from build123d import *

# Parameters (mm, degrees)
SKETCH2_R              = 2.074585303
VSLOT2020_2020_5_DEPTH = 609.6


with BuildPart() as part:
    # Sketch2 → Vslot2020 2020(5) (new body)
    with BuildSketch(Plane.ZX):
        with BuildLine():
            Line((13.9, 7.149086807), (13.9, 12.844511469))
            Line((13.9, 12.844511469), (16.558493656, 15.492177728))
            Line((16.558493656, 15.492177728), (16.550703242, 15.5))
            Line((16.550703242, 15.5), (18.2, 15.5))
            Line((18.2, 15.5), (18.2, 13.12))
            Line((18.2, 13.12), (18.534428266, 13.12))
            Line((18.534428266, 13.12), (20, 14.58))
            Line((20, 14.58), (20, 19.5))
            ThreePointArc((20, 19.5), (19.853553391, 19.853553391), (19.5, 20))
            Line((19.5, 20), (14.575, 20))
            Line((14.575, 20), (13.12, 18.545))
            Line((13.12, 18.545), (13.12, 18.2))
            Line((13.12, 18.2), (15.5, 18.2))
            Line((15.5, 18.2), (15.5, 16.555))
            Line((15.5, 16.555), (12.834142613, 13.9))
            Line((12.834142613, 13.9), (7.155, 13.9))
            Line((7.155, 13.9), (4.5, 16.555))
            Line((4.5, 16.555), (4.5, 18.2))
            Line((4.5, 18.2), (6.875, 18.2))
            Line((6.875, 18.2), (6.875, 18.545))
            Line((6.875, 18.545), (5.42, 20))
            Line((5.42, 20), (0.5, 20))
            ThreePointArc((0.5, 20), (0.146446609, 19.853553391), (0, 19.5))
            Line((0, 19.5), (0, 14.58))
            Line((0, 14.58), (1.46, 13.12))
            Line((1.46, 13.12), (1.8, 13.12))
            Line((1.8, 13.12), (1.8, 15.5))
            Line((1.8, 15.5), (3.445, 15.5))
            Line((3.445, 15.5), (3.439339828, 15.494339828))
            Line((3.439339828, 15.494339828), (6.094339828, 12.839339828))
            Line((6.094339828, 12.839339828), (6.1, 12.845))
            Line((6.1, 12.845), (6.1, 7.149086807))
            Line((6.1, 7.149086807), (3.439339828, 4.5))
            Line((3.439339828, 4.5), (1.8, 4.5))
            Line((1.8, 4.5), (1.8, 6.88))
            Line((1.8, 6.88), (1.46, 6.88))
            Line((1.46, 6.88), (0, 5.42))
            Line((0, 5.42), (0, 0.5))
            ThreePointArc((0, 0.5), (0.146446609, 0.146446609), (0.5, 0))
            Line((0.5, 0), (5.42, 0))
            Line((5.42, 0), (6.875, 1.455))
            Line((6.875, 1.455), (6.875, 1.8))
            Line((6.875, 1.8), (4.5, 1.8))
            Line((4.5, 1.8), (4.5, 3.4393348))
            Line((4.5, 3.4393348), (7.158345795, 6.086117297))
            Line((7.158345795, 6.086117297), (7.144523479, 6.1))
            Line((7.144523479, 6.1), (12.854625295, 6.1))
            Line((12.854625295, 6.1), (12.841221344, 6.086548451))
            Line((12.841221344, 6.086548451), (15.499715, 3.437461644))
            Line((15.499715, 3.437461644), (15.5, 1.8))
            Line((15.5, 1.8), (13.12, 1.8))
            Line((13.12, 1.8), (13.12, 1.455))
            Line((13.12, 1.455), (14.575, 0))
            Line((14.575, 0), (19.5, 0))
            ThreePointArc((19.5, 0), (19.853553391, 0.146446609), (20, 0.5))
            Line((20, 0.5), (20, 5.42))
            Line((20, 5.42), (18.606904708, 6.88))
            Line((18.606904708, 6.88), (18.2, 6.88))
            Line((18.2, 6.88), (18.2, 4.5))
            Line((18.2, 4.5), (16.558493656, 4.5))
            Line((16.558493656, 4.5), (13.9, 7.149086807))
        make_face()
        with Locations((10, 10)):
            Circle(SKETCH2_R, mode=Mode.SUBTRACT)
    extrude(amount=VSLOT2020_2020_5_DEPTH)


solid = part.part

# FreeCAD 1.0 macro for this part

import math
import FreeCAD as App
import Part
import Sketcher

V = App.Vector
Q = App.Units.Quantity

doc = App.newDocument("Part")
body = doc.addObject("PartDesign::Body", "Body")

# Sketch on XZ plane
sketch1 = body.newObject("Sketcher::SketchObject", "Sketch")
sketch1.AttachmentSupport = (doc.getObject("XZ_Plane"), [""])
sketch1.MapMode = "FlatFace"
sketch1.addGeometry([
    Part.LineSegment(V(7.149, 13.9, 0), V(12.845, 13.9, 0)),  # 0
    Part.LineSegment(V(12.845, 13.9, 0), V(15.492, 16.558, 0)),  # 1
    Part.LineSegment(V(15.492, 16.558, 0), V(15.5, 16.551, 0)),  # 2
    Part.LineSegment(V(15.5, 16.551, 0), V(15.5, 18.2, 0)),  # 3
    Part.LineSegment(V(15.5, 18.2, 0), V(13.12, 18.2, 0)),  # 4
    Part.LineSegment(V(13.12, 18.2, 0), V(13.12, 18.534, 0)),  # 5
    Part.LineSegment(V(13.12, 18.534, 0), V(14.58, 20, 0)),  # 6
    Part.LineSegment(V(14.58, 20, 0), V(19.5, 20, 0)),  # 7
    Part.ArcOfCircle(Part.Circle(V(19.5, 19.5, 0), V(0, 0, 1), 0.5), math.radians(0), math.radians(90)),  # 8
    Part.LineSegment(V(20, 19.5, 0), V(20, 14.575, 0)),  # 9
    Part.LineSegment(V(20, 14.575, 0), V(18.545, 13.12, 0)),  # 10
    Part.LineSegment(V(18.545, 13.12, 0), V(18.2, 13.12, 0)),  # 11
    Part.LineSegment(V(18.2, 13.12, 0), V(18.2, 15.5, 0)),  # 12
    Part.LineSegment(V(18.2, 15.5, 0), V(16.555, 15.5, 0)),  # 13
    Part.LineSegment(V(16.555, 15.5, 0), V(13.9, 12.834, 0)),  # 14
    Part.LineSegment(V(13.9, 12.834, 0), V(13.9, 7.155, 0)),  # 15
    Part.LineSegment(V(13.9, 7.155, 0), V(16.555, 4.5, 0)),  # 16
    Part.LineSegment(V(16.555, 4.5, 0), V(18.2, 4.5, 0)),  # 17
    Part.LineSegment(V(18.2, 4.5, 0), V(18.2, 6.875, 0)),  # 18
    Part.LineSegment(V(18.2, 6.875, 0), V(18.545, 6.875, 0)),  # 19
    Part.LineSegment(V(18.545, 6.875, 0), V(20, 5.42, 0)),  # 20
    Part.LineSegment(V(20, 5.42, 0), V(20, 0.5, 0)),  # 21
    Part.ArcOfCircle(Part.Circle(V(19.5, 0.5, 0), V(0, 0, 1), 0.5), math.radians(-90), math.radians(0)),  # 22
    Part.LineSegment(V(19.5, 0, 0), V(14.58, 0, 0)),  # 23
    Part.LineSegment(V(14.58, 0, 0), V(13.12, 1.46, 0)),  # 24
    Part.LineSegment(V(13.12, 1.46, 0), V(13.12, 1.8, 0)),  # 25
    Part.LineSegment(V(13.12, 1.8, 0), V(15.5, 1.8, 0)),  # 26
    Part.LineSegment(V(15.5, 1.8, 0), V(15.5, 3.445, 0)),  # 27
    Part.LineSegment(V(15.5, 3.445, 0), V(15.494, 3.439, 0)),  # 28
    Part.LineSegment(V(15.494, 3.439, 0), V(12.839, 6.094, 0)),  # 29
    Part.LineSegment(V(12.839, 6.094, 0), V(12.845, 6.1, 0)),  # 30
    Part.LineSegment(V(12.845, 6.1, 0), V(7.149, 6.1, 0)),  # 31
    Part.LineSegment(V(7.149, 6.1, 0), V(4.5, 3.439, 0)),  # 32
    Part.LineSegment(V(4.5, 3.439, 0), V(4.5, 1.8, 0)),  # 33
    Part.LineSegment(V(4.5, 1.8, 0), V(6.88, 1.8, 0)),  # 34
    Part.LineSegment(V(6.88, 1.8, 0), V(6.88, 1.46, 0)),  # 35
    Part.LineSegment(V(6.88, 1.46, 0), V(5.42, 0, 0)),  # 36
    Part.LineSegment(V(5.42, 0, 0), V(0.5, 0, 0)),  # 37
    Part.ArcOfCircle(Part.Circle(V(0.5, 0.5, 0), V(0, 0, 1), 0.5), math.radians(180), math.radians(270)),  # 38
    Part.LineSegment(V(0, 0.5, 0), V(0, 5.42, 0)),  # 39
    Part.LineSegment(V(0, 5.42, 0), V(1.455, 6.875, 0)),  # 40
    Part.LineSegment(V(1.455, 6.875, 0), V(1.8, 6.875, 0)),  # 41
    Part.LineSegment(V(1.8, 6.875, 0), V(1.8, 4.5, 0)),  # 42
    Part.LineSegment(V(1.8, 4.5, 0), V(3.439, 4.5, 0)),  # 43
    Part.LineSegment(V(3.439, 4.5, 0), V(6.086, 7.158, 0)),  # 44
    Part.LineSegment(V(6.086, 7.158, 0), V(6.1, 7.145, 0)),  # 45
    Part.LineSegment(V(6.1, 7.145, 0), V(6.1, 12.855, 0)),  # 46
    Part.LineSegment(V(6.1, 12.855, 0), V(6.087, 12.841, 0)),  # 47
    Part.LineSegment(V(6.087, 12.841, 0), V(3.437, 15.5, 0)),  # 48
    Part.LineSegment(V(3.437, 15.5, 0), V(1.8, 15.5, 0)),  # 49
    Part.LineSegment(V(1.8, 15.5, 0), V(1.8, 13.12, 0)),  # 50
    Part.LineSegment(V(1.8, 13.12, 0), V(1.455, 13.12, 0)),  # 51
    Part.LineSegment(V(1.455, 13.12, 0), V(0, 14.575, 0)),  # 52
    Part.LineSegment(V(0, 14.575, 0), V(0, 19.5, 0)),  # 53
    Part.ArcOfCircle(Part.Circle(V(0.5, 19.5, 0), V(0, 0, 1), 0.5), math.radians(90), math.radians(180)),  # 54
    Part.LineSegment(V(0.5, 20, 0), V(5.42, 20, 0)),  # 55
    Part.LineSegment(V(5.42, 20, 0), V(6.88, 18.607, 0)),  # 56
    Part.LineSegment(V(6.88, 18.607, 0), V(6.88, 18.2, 0)),  # 57
    Part.LineSegment(V(6.88, 18.2, 0), V(4.5, 18.2, 0)),  # 58
    Part.LineSegment(V(4.5, 18.2, 0), V(4.5, 16.558, 0)),  # 59
    Part.LineSegment(V(4.5, 16.558, 0), V(7.149, 13.9, 0)),  # 60
    Part.Circle(V(10, 10, 0), V(0, 0, 1), 2.075),  # 61
], False)
sketch1.addConstraint([
    Sketcher.Constraint("Coincident", 0, 2, 1, 1),
    Sketcher.Constraint("Coincident", 1, 2, 2, 1),
    Sketcher.Constraint("Coincident", 2, 2, 3, 1),
    Sketcher.Constraint("Coincident", 3, 2, 4, 1),
    Sketcher.Constraint("Coincident", 4, 2, 5, 1),
    Sketcher.Constraint("Coincident", 5, 2, 6, 1),
    Sketcher.Constraint("Coincident", 6, 2, 7, 1),
    Sketcher.Constraint("Tangent", 7, 2, 8, 2),
    Sketcher.Constraint("Tangent", 8, 1, 9, 1),
    Sketcher.Constraint("Coincident", 9, 2, 10, 1),
    Sketcher.Constraint("Coincident", 10, 2, 11, 1),
    Sketcher.Constraint("Coincident", 11, 2, 12, 1),
    Sketcher.Constraint("Coincident", 12, 2, 13, 1),
    Sketcher.Constraint("Coincident", 13, 2, 14, 1),
    Sketcher.Constraint("Coincident", 14, 2, 15, 1),
    Sketcher.Constraint("Coincident", 15, 2, 16, 1),
    Sketcher.Constraint("Coincident", 16, 2, 17, 1),
    Sketcher.Constraint("Coincident", 17, 2, 18, 1),
    Sketcher.Constraint("Coincident", 18, 2, 19, 1),
    Sketcher.Constraint("Coincident", 19, 2, 20, 1),
    Sketcher.Constraint("Coincident", 20, 2, 21, 1),
    Sketcher.Constraint("Tangent", 21, 2, 22, 2),
    Sketcher.Constraint("Tangent", 22, 1, 23, 1),
    Sketcher.Constraint("Coincident", 23, 2, 24, 1),
    Sketcher.Constraint("Coincident", 24, 2, 25, 1),
    Sketcher.Constraint("Coincident", 25, 2, 26, 1),
    Sketcher.Constraint("Coincident", 26, 2, 27, 1),
    Sketcher.Constraint("Coincident", 27, 2, 28, 1),
    Sketcher.Constraint("Coincident", 28, 2, 29, 1),
    Sketcher.Constraint("Coincident", 29, 2, 30, 1),
    Sketcher.Constraint("Coincident", 30, 2, 31, 1),
    Sketcher.Constraint("Coincident", 31, 2, 32, 1),
    Sketcher.Constraint("Coincident", 32, 2, 33, 1),
    Sketcher.Constraint("Coincident", 33, 2, 34, 1),
    Sketcher.Constraint("Coincident", 34, 2, 35, 1),
    Sketcher.Constraint("Coincident", 35, 2, 36, 1),
    Sketcher.Constraint("Coincident", 36, 2, 37, 1),
    Sketcher.Constraint("Tangent", 37, 2, 38, 2),
    Sketcher.Constraint("Tangent", 38, 1, 39, 1),
    Sketcher.Constraint("Coincident", 39, 2, 40, 1),
    Sketcher.Constraint("Coincident", 40, 2, 41, 1),
    Sketcher.Constraint("Coincident", 41, 2, 42, 1),
    Sketcher.Constraint("Coincident", 42, 2, 43, 1),
    Sketcher.Constraint("Coincident", 43, 2, 44, 1),
    Sketcher.Constraint("Coincident", 44, 2, 45, 1),
    Sketcher.Constraint("Coincident", 45, 2, 46, 1),
    Sketcher.Constraint("Coincident", 46, 2, 47, 1),
    Sketcher.Constraint("Coincident", 47, 2, 48, 1),
    Sketcher.Constraint("Coincident", 48, 2, 49, 1),
    Sketcher.Constraint("Coincident", 49, 2, 50, 1),
    Sketcher.Constraint("Coincident", 50, 2, 51, 1),
    Sketcher.Constraint("Coincident", 51, 2, 52, 1),
    Sketcher.Constraint("Coincident", 52, 2, 53, 1),
    Sketcher.Constraint("Tangent", 53, 2, 54, 2),
    Sketcher.Constraint("Tangent", 54, 1, 55, 1),
    Sketcher.Constraint("Coincident", 55, 2, 56, 1),
    Sketcher.Constraint("Coincident", 56, 2, 57, 1),
    Sketcher.Constraint("Coincident", 57, 2, 58, 1),
    Sketcher.Constraint("Coincident", 58, 2, 59, 1),
    Sketcher.Constraint("Coincident", 59, 2, 60, 1),
    Sketcher.Constraint("Coincident", 60, 2, 0, 1),
    Sketcher.Constraint("Horizontal", 0),
    Sketcher.Constraint("Vertical", 3),
    Sketcher.Constraint("Horizontal", 4),
    Sketcher.Constraint("Vertical", 5),
    Sketcher.Constraint("Horizontal", 7),
    Sketcher.Constraint("Vertical", 9),
    Sketcher.Constraint("Horizontal", 11),
    Sketcher.Constraint("Vertical", 12),
    Sketcher.Constraint("Horizontal", 13),
    Sketcher.Constraint("Vertical", 15),
    Sketcher.Constraint("Horizontal", 17),
    Sketcher.Constraint("Vertical", 18),
    Sketcher.Constraint("Horizontal", 19),
    Sketcher.Constraint("Vertical", 21),
    Sketcher.Constraint("Horizontal", 23),
    Sketcher.Constraint("Vertical", 25),
    Sketcher.Constraint("Horizontal", 26),
    Sketcher.Constraint("Vertical", 27),
    Sketcher.Constraint("Horizontal", 31),
    Sketcher.Constraint("Vertical", 33),
    Sketcher.Constraint("Horizontal", 34),
    Sketcher.Constraint("Vertical", 35),
    Sketcher.Constraint("Horizontal", 37),
    Sketcher.Constraint("Vertical", 39),
    Sketcher.Constraint("Horizontal", 41),
    Sketcher.Constraint("Vertical", 42),
    Sketcher.Constraint("Horizontal", 43),
    Sketcher.Constraint("Vertical", 46),
    Sketcher.Constraint("Vertical", 50),
    Sketcher.Constraint("Horizontal", 51),
    Sketcher.Constraint("Vertical", 53),
    Sketcher.Constraint("Horizontal", 55),
    Sketcher.Constraint("Vertical", 57),
    Sketcher.Constraint("Horizontal", 58),
    Sketcher.Constraint("Vertical", 59),
    Sketcher.Constraint("Equal", 8, 22),
    Sketcher.Constraint("Equal", 22, 38),
    Sketcher.Constraint("Equal", 38, 54),
    Sketcher.Constraint("PointOnObject", 22, 1, -1),
    Sketcher.Constraint("PointOnObject", 36, 2, -1),
    Sketcher.Constraint("PointOnObject", 38, 1, -2),
    Sketcher.Constraint("PointOnObject", 52, 2, -2),
    Sketcher.Constraint("Perpendicular", 1, 2),
    Sketcher.Constraint("Perpendicular", 2, 14),
    Sketcher.Constraint("Perpendicular", 10, 16),
    Sketcher.Constraint("Parallel", 16, 20),
    Sketcher.Constraint("Parallel", 20, 24),
    Sketcher.Constraint("Perpendicular", 24, 28),
    Sketcher.Constraint("Parallel", 24, 29),
    Sketcher.Constraint("Perpendicular", 29, 30),
    Sketcher.Constraint("Parallel", 30, 36),
    Sketcher.Constraint("Parallel", 36, 40),
    Sketcher.Constraint("Parallel", 32, 44),
    Sketcher.Constraint("Perpendicular", 44, 45),
    Sketcher.Constraint("Perpendicular", 47, 48),
    Sketcher.Constraint("Perpendicular", 40, 52),
    Sketcher.Constraint("Parallel", 48, 60),
    Sketcher.Constraint("Horizontal", 8, 3, 54, 3),
    Sketcher.Constraint("Horizontal", 28, 2, 32, 2),
    Sketcher.Constraint("Horizontal", 26, 2, 33, 2),
    Sketcher.Constraint("Horizontal", 24, 2, 35, 2),
    Sketcher.Constraint("Horizontal", 20, 2, 39, 2),
    Sketcher.Constraint("Horizontal", 19, 2, 40, 2),
    Sketcher.Constraint("Horizontal", 17, 2, 42, 2),
    Sketcher.Constraint("Horizontal", 13, 2, 49, 2),
    Sketcher.Constraint("Horizontal", 11, 2, 50, 2),
    Sketcher.Constraint("Horizontal", 9, 2, 52, 2),
    Sketcher.Constraint("Horizontal", 4, 2, 57, 2),
    Sketcher.Constraint("Horizontal", 1, 2, 59, 2),
    Sketcher.Constraint("Vertical", 8, 3, 22, 3),
    Sketcher.Constraint("Vertical", 13, 2, 16, 2),
    Sketcher.Constraint("Vertical", 12, 2, 17, 2),
    Sketcher.Constraint("Vertical", 10, 2, 19, 2),
    Sketcher.Constraint("Vertical", 6, 2, 23, 2),
    Sketcher.Constraint("Vertical", 5, 2, 24, 2),
    Sketcher.Constraint("Vertical", 3, 2, 26, 2),
    Sketcher.Constraint("Vertical", 42, 2, 49, 2),
    Sketcher.Constraint("Vertical", 40, 2, 51, 2),
    Sketcher.Constraint("Vertical", 36, 2, 55, 2),
    Sketcher.Constraint("Vertical", 35, 2, 56, 2),
    Sketcher.Constraint("Vertical", 33, 2, 58, 2),
    Sketcher.Constraint("Vertical", 31, 2, 60, 2),
    Sketcher.Constraint("Equal", 26, 34),
    Sketcher.Constraint("Equal", 23, 37),
    Sketcher.Constraint("Equal", 19, 41),
    Sketcher.Constraint("Equal", 58, 12),
    Sketcher.Constraint("Equal", 55, 21),
    Sketcher.Constraint("Equal", 17, 27),
    Sketcher.Constraint("Equal", 16, 29),
    Sketcher.Constraint("Equal", 28, 30),
    Sketcher.Constraint("Equal", 48, 60),
    Sketcher.Constraint("Radius", 8, Q("0.5 mm")),
    Sketcher.Constraint("DistanceX", -1, 1, 61, 3, Q("10 mm")),
    Sketcher.Constraint("DistanceY", -1, 1, 61, 3, Q("10 mm")),
    Sketcher.Constraint("DistanceY", -1, 1, 6, 2, Q("20 mm")),
    Sketcher.Constraint("DistanceX", -1, 1, 8, 1, Q("20 mm")),
    Sketcher.Constraint("DistanceX", 4, 2, 4, 1, Q("2.38 mm")),
    Sketcher.Constraint("DistanceX", 7, 1, 7, 2, Q("4.92 mm")),
    Sketcher.Constraint("DistanceY", 25, 1, 25, 2, Q("0.34 mm")),
    Sketcher.Constraint("DistanceY", -1, 1, 0, 2, Q("13.9 mm")),
    Sketcher.Constraint("DistanceX", -1, 1, 2, 2, Q("15.5 mm")),
    Sketcher.Constraint("DistanceY", -1, 1, 3, 2, Q("18.2 mm")),
    Sketcher.Constraint("DistanceX", -1, 1, 11, 2, Q("18.2 mm")),
    Sketcher.Constraint("DistanceY", -1, 1, 12, 2, Q("15.5 mm")),
    Sketcher.Constraint("DistanceX", -1, 1, 14, 2, Q("13.9 mm")),
    Sketcher.Constraint("DistanceY", -1, 1, 16, 2, Q("4.5 mm")),
    Sketcher.Constraint("DistanceX", -1, 1, 45, 2, Q("6.1 mm")),
    Sketcher.Constraint("Diameter", 61, Q("4.149171 mm")),
    Sketcher.Constraint("DistanceX", 11, 2, 11, 1, Q("0.345 mm")),
    Sketcher.Constraint("DistanceX", 13, 2, 13, 1, Q("1.645 mm")),
    Sketcher.Constraint("DistanceY", 46, 1, 46, 2, Q("5.710102 mm")),
    Sketcher.Constraint("Distance", 44, Q("3.751301 mm")),
    Sketcher.Constraint("DistanceY", 5, 1, 5, 2, Q("0.334428 mm")),
    Sketcher.Constraint("DistanceY", 33, 2, 33, 1, Q("1.63934 mm")),
    Sketcher.Constraint("Distance", 1, Q("3.752029 mm")),
    Sketcher.Constraint("Distance", 2, Q("0.01104 mm")),
    Sketcher.Constraint("Distance", 45, Q("0.01959 mm")),
    Sketcher.Constraint("Distance", 47, Q("0.01899 mm")),
    Sketcher.Constraint("Distance", 49, Q("1.637462 mm")),
    Sketcher.Constraint("DistanceX", 0, 1, 0, 2, Q("5.695425 mm")),
    Sketcher.Constraint("DistanceY", 57, 2, 57, 1, Q("0.406905 mm")),
])
pad1 = body.newObject("PartDesign::Pad", "Pad")
pad1.Profile = sketch1
pad1.Length = 609.6
pad1.Reversed = True

doc.recompute()
